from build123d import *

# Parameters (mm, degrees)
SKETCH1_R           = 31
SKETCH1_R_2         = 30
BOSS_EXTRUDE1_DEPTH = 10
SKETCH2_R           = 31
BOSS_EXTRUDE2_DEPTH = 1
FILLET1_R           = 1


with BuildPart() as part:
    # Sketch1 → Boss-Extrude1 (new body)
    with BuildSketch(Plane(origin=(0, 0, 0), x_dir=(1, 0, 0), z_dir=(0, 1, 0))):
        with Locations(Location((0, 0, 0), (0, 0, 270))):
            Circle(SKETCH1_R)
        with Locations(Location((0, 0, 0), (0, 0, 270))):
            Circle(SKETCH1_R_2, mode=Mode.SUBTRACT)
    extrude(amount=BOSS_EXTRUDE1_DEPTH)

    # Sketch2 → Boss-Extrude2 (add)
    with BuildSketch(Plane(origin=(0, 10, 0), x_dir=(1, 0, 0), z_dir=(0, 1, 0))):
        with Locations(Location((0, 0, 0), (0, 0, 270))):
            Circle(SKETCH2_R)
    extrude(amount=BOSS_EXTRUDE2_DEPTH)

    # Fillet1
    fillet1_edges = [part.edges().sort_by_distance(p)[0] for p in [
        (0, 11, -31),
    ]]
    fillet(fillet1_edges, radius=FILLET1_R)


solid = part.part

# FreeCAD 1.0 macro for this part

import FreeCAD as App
import Part
import Sketcher

V = App.Vector


def edges_at(feature, points):
    """Names of the edges that pass closest to the given points."""
    edges = feature.Shape.Edges
    near = lambda p: min(range(len(edges)), key=lambda i: edges[i].distToShape(Part.Vertex(*p))[0])
    return sorted({f"Edge{near(p) + 1}" for p in points})

doc = App.newDocument("Part")
body = doc.addObject("PartDesign::Body", "Body")

sketch1 = doc.addObject("Sketcher::SketchObject", "Sketch")
body.addObject(sketch1)
sketch1.AttachmentSupport = (doc.XZ_Plane, [""])
sketch1.MapMode = "FlatFace"
sketch1.addGeometry([
    Part.Circle(V(0, 0, 0), V(0, 0, 1), 31),
    Part.Circle(V(0, 0, 0), V(0, 0, 1), 30),
], False)
sketch1.addConstraint([
    Sketcher.Constraint("Coincident", 0, 3, -1, 1),
    Sketcher.Constraint("Coincident", 1, 3, -1, 1),
    Sketcher.Constraint("Diameter", 0, 62.0),
    Sketcher.Constraint("Diameter", 1, 60.0),
])
pad1 = doc.addObject("PartDesign::Pad", "Pad")
body.addObject(pad1)
pad1.Profile = sketch1
pad1.Length = 10
pad1.Reversed = True

sketch2 = doc.addObject("Sketcher::SketchObject", "Sketch001")
body.addObject(sketch2)
sketch2.AttachmentSupport = (doc.XZ_Plane, [""])
sketch2.MapMode = "FlatFace"
sketch2.AttachmentOffset = App.Placement(V(0, 0, -10), App.Rotation())
sketch2.addGeometry(Part.Circle(V(0, 0, 0), V(0, 0, 1), 31), False)
sketch2.addConstraint([
    Sketcher.Constraint("Coincident", 0, 3, -1, 1),
    Sketcher.Constraint("Diameter", 0, 62.0),
])
pad2 = doc.addObject("PartDesign::Pad", "Pad001")
body.addObject(pad2)
pad2.Profile = sketch2
pad2.Length = 1
pad2.Reversed = True
doc.recompute()

fillet = doc.addObject("PartDesign::Fillet", "Fillet")
body.addObject(fillet)
fillet.Base = (pad2, edges_at(pad2, [(0, 11, -31)]))
fillet.Radius = 1

doc.recompute()
